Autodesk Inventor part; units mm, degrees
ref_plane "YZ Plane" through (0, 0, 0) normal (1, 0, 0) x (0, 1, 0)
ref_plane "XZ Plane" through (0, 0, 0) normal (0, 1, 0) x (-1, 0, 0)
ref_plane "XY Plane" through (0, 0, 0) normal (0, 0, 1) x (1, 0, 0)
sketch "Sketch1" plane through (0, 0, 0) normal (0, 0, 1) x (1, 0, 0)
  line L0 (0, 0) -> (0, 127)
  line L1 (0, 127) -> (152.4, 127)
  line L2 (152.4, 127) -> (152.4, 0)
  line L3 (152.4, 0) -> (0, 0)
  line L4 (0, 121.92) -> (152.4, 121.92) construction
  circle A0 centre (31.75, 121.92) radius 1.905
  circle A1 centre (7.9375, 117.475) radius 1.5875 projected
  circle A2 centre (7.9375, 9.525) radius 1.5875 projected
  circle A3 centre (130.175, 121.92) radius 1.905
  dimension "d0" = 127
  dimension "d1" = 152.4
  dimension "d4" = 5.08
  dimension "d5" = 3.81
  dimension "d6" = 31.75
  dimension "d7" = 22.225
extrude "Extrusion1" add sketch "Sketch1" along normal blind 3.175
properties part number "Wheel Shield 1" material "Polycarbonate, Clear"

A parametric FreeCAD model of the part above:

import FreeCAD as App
import Part
import Sketcher

V = App.Vector
Q = App.Units.Quantity

doc = App.newDocument("Part")
body = doc.addObject("PartDesign::Body", "Body")

# Sketch on XY plane
sketch1 = body.newObject("Sketcher::SketchObject", "Sketch")
sketch1.AttachmentSupport = (doc.getObject("XY_Plane"), [""])
sketch1.MapMode = "FlatFace"
sketch1.addGeometry([
    Part.LineSegment(V(0, 127, 0), V(0, 0, 0)),  # 0
    Part.LineSegment(V(0, 0, 0), V(152.4, 0, 0)),  # 1
    Part.LineSegment(V(152.4, 0, 0), V(152.4, 127, 0)),  # 2
    Part.LineSegment(V(152.4, 127, 0), V(0, 127, 0)),  # 3
    Part.Circle(V(7.9, 9.5, 0), V(0, 0, 1), 1.6),  # 4
    Part.Circle(V(7.9, 117.5, 0), V(0, 0, 1), 1.6),  # 5
    Part.Circle(V(31.8, 121.9, 0), V(0, 0, 1), 1.9),  # 6
    Part.Circle(V(130.2, 121.9, 0), V(0, 0, 1), 1.9),  # 7
], False)
sketch1.addConstraint([
    Sketcher.Constraint("Coincident", 0, 2, 1, 1),
    Sketcher.Constraint("Coincident", 1, 2, 2, 1),
    Sketcher.Constraint("Coincident", 2, 2, 3, 1),
    Sketcher.Constraint("Coincident", 3, 2, 0, 1),
    Sketcher.Constraint("Vertical", 0),
    Sketcher.Constraint("Horizontal", 1),
    Sketcher.Constraint("Vertical", 2),
    Sketcher.Constraint("Horizontal", 3),
    Sketcher.Constraint("Coincident", 0, 2, -1, 1),
    Sketcher.Constraint("Equal", 4, 5),
    Sketcher.Constraint("Equal", 6, 7),
    Sketcher.Constraint("Horizontal", 6, 3, 7, 3),
    Sketcher.Constraint("Vertical", 4, 3, 5, 3),
    Sketcher.Constraint("Diameter", 6, Q("0.15 in")),
    Sketcher.Constraint("DistanceX", 1, 1, 1, 2, Q("6 in")),
    Sketcher.Constraint("DistanceY", 0, 2, 0, 1, Q("5 in")),
    Sketcher.Constraint("DistanceY", 7, 3, 2, 2, Q("0.2 in")),
    Sketcher.Constraint("DistanceX", -1, 1, 6, 3, Q("1.25 in")),
    Sketcher.Constraint("Diameter", 4, Q("0.125 in")),
    Sketcher.Constraint("DistanceX", 7, 3, 1, 2, Q("0.875 in")),
    Sketcher.Constraint("DistanceY", 4, 3, 5, 3, Q("4.25 in")),
    Sketcher.Constraint("DistanceX", -1, 1, 4, 3, Q("0.3125 in")),
    Sketcher.Constraint("DistanceY", -1, 1, 4, 3, Q("0.375 in")),
])
pad1 = body.newObject("PartDesign::Pad", "Pad")
pad1.Profile = sketch1
pad1.Length = Q("0.125 in")

doc.recompute()
